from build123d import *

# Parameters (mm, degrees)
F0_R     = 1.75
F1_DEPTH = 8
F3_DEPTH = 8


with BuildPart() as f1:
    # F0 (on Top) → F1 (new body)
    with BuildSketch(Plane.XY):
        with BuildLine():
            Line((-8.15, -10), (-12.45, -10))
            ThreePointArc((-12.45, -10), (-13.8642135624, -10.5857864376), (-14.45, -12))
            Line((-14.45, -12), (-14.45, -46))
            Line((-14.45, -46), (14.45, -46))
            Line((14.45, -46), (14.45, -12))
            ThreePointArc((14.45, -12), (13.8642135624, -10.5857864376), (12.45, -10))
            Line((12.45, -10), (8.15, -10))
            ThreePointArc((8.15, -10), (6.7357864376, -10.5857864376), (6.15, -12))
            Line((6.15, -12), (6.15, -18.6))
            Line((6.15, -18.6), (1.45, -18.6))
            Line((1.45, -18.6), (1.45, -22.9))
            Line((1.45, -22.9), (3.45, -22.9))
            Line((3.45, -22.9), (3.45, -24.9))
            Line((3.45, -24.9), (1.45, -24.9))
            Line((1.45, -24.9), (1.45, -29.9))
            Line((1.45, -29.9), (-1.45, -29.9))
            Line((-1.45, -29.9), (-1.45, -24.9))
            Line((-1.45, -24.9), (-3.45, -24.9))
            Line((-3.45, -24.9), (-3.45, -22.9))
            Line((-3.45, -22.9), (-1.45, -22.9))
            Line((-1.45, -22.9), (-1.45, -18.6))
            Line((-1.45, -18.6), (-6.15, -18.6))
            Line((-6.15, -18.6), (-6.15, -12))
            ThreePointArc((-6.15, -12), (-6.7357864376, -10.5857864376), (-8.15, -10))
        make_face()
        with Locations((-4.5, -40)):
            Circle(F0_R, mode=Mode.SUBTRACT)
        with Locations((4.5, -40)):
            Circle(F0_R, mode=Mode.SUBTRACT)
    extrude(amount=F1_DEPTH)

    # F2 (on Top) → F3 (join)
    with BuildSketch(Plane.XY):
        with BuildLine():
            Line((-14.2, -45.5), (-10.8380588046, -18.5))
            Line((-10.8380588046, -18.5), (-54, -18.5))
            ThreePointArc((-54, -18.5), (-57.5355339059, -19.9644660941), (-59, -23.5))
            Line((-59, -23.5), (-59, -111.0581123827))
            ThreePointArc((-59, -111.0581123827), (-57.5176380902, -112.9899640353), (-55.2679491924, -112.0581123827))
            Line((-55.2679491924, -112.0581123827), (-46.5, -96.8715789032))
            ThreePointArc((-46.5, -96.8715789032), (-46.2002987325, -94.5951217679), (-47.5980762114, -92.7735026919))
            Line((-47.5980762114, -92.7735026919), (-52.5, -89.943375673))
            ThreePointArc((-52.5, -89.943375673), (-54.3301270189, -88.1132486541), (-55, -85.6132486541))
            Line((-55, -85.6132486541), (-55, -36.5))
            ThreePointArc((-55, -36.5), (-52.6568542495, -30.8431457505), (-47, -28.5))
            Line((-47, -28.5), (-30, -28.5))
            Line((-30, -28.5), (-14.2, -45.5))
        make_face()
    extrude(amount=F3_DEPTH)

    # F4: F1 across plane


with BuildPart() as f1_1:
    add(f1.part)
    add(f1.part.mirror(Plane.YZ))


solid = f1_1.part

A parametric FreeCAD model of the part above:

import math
import FreeCAD as App
import Part
import Sketcher
from FreeCAD import Vector
Q = App.Units.Quantity

doc = App.newDocument("Part")
body = doc.addObject("PartDesign::Body", "Body")

# Sketch on XY plane
sketch1 = doc.addObject("Sketcher::SketchObject", "Sketch")
body.addObject(sketch1)
sketch1.AttachmentSupport = (doc.XY_Plane, [""])
sketch1.MapMode = "FlatFace"
sketch1.addGeometry(Part.LineSegment(Vector(-8.2, -10, 0), Vector(-12.4, -10, 0)), False)
sketch1.addGeometry(Part.ArcOfCircle(Part.Circle(Vector(-12.4, -12, 0), Vector(0, 0, 1), 2), math.radians(90), math.radians(180)), False)
sketch1.addGeometry(Part.LineSegment(Vector(-14.4, -12, 0), Vector(-14.4, -46, 0)), False)
sketch1.addGeometry(Part.LineSegment(Vector(-14.4, -46, 0), Vector(14.4, -46, 0)), False)
sketch1.addGeometry(Part.LineSegment(Vector(14.4, -46, 0), Vector(14.4, -12, 0)), False)
sketch1.addGeometry(Part.ArcOfCircle(Part.Circle(Vector(12.4, -12, 0), Vector(0, 0, 1), 2), math.radians(0), math.radians(90)), False)
sketch1.addGeometry(Part.LineSegment(Vector(12.4, -10, 0), Vector(8.2, -10, 0)), False)
sketch1.addGeometry(Part.ArcOfCircle(Part.Circle(Vector(8.2, -12, 0), Vector(0, 0, 1), 2), math.radians(90), math.radians(180)), False)
sketch1.addGeometry(Part.LineSegment(Vector(6.2, -12, 0), Vector(6.2, -18.6, 0)), False)
sketch1.addGeometry(Part.LineSegment(Vector(6.2, -18.6, 0), Vector(1.4, -18.6, 0)), False)
sketch1.addGeometry(Part.LineSegment(Vector(1.4, -18.6, 0), Vector(1.4, -22.9, 0)), False)
sketch1.addGeometry(Part.LineSegment(Vector(1.4, -22.9, 0), Vector(3.5, -22.9, 0)), False)
sketch1.addGeometry(Part.LineSegment(Vector(3.5, -22.9, 0), Vector(3.5, -24.9, 0)), False)
sketch1.addGeometry(Part.LineSegment(Vector(3.5, -24.9, 0), Vector(1.4, -24.9, 0)), False)
sketch1.addGeometry(Part.LineSegment(Vector(1.4, -24.9, 0), Vector(1.4, -29.9, 0)), False)
sketch1.addGeometry(Part.LineSegment(Vector(1.4, -29.9, 0), Vector(-1.4, -29.9, 0)), False)
sketch1.addGeometry(Part.LineSegment(Vector(-1.4, -29.9, 0), Vector(-1.4, -24.9, 0)), False)
sketch1.addGeometry(Part.LineSegment(Vector(-1.4, -24.9, 0), Vector(-3.5, -24.9, 0)), False)
sketch1.addGeometry(Part.LineSegment(Vector(-3.5, -24.9, 0), Vector(-3.5, -22.9, 0)), False)
sketch1.addGeometry(Part.LineSegment(Vector(-3.5, -22.9, 0), Vector(-1.4, -22.9, 0)), False)
sketch1.addGeometry(Part.LineSegment(Vector(-1.4, -22.9, 0), Vector(-1.4, -18.6, 0)), False)
sketch1.addGeometry(Part.LineSegment(Vector(-1.4, -18.6, 0), Vector(-6.2, -18.6, 0)), False)
sketch1.addGeometry(Part.LineSegment(Vector(-6.2, -18.6, 0), Vector(-6.2, -12, 0)), False)
sketch1.addGeometry(Part.ArcOfCircle(Part.Circle(Vector(-8.2, -12, 0), Vector(0, 0, 1), 2), math.radians(0), math.radians(90)), False)
sketch1.addGeometry(Part.Circle(Vector(-4.5, -40, 0), Vector(0, 0, 1), 1.8), False)
sketch1.addGeometry(Part.Circle(Vector(4.5, -40, 0), Vector(0, 0, 1), 1.8), False)
sketch1.addConstraint(Sketcher.Constraint("Tangent", 0, 2, 1, 1))
sketch1.addConstraint(Sketcher.Constraint("Tangent", 1, 2, 2, 1))
sketch1.addConstraint(Sketcher.Constraint("Coincident", 2, 2, 3, 1))
sketch1.addConstraint(Sketcher.Constraint("Coincident", 3, 2, 4, 1))
sketch1.addConstraint(Sketcher.Constraint("Tangent", 4, 2, 5, 1))
sketch1.addConstraint(Sketcher.Constraint("Tangent", 5, 2, 6, 1))
sketch1.addConstraint(Sketcher.Constraint("Tangent", 6, 2, 7, 1))
sketch1.addConstraint(Sketcher.Constraint("Tangent", 7, 2, 8, 1))
sketch1.addConstraint(Sketcher.Constraint("Coincident", 8, 2, 9, 1))
sketch1.addConstraint(Sketcher.Constraint("Coincident", 9, 2, 10, 1))
sketch1.addConstraint(Sketcher.Constraint("Coincident", 10, 2, 11, 1))
sketch1.addConstraint(Sketcher.Constraint("Coincident", 11, 2, 12, 1))
sketch1.addConstraint(Sketcher.Constraint("Coincident", 12, 2, 13, 1))
sketch1.addConstraint(Sketcher.Constraint("Coincident", 13, 2, 14, 1))
sketch1.addConstraint(Sketcher.Constraint("Coincident", 14, 2, 15, 1))
sketch1.addConstraint(Sketcher.Constraint("Coincident", 15, 2, 16, 1))
sketch1.addConstraint(Sketcher.Constraint("Coincident", 16, 2, 17, 1))
sketch1.addConstraint(Sketcher.Constraint("Coincident", 17, 2, 18, 1))
sketch1.addConstraint(Sketcher.Constraint("Coincident", 18, 2, 19, 1))
sketch1.addConstraint(Sketcher.Constraint("Coincident", 19, 2, 20, 1))
sketch1.addConstraint(Sketcher.Constraint("Coincident", 20, 2, 21, 1))
sketch1.addConstraint(Sketcher.Constraint("Coincident", 21, 2, 22, 1))
sketch1.addConstraint(Sketcher.Constraint("Tangent", 22, 2, 23, 1))
sketch1.addConstraint(Sketcher.Constraint("Tangent", 23, 2, 0, 1))
sketch1.addConstraint(Sketcher.Constraint("Horizontal", 0))
sketch1.addConstraint(Sketcher.Constraint("Vertical", 2))
sketch1.addConstraint(Sketcher.Constraint("Horizontal", 3))
sketch1.addConstraint(Sketcher.Constraint("Vertical", 4))
sketch1.addConstraint(Sketcher.Constraint("Horizontal", 6))
sketch1.addConstraint(Sketcher.Constraint("Vertical", 8))
sketch1.addConstraint(Sketcher.Constraint("Horizontal", 9))
sketch1.addConstraint(Sketcher.Constraint("Vertical", 10))
sketch1.addConstraint(Sketcher.Constraint("Horizontal", 11))
sketch1.addConstraint(Sketcher.Constraint("Vertical", 12))
sketch1.addConstraint(Sketcher.Constraint("Horizontal", 13))
sketch1.addConstraint(Sketcher.Constraint("Vertical", 14))
sketch1.addConstraint(Sketcher.Constraint("Horizontal", 15))
sketch1.addConstraint(Sketcher.Constraint("Vertical", 16))
sketch1.addConstraint(Sketcher.Constraint("Horizontal", 17))
sketch1.addConstraint(Sketcher.Constraint("Vertical", 18))
sketch1.addConstraint(Sketcher.Constraint("Horizontal", 19))
sketch1.addConstraint(Sketcher.Constraint("Vertical", 20))
sketch1.addConstraint(Sketcher.Constraint("Horizontal", 21))
sketch1.addConstraint(Sketcher.Constraint("Vertical", 22))
sketch1.addConstraint(Sketcher.Constraint("Equal", 1, 5))
sketch1.addConstraint(Sketcher.Constraint("Equal", 5, 7))
sketch1.addConstraint(Sketcher.Constraint("Equal", 7, 23))
sketch1.addConstraint(Sketcher.Constraint("Equal", 24, 25))
sketch1.addConstraint(Sketcher.Constraint("Symmetric", 1, 3, 5, 3, -2))
sketch1.addConstraint(Sketcher.Constraint("Symmetric", 24, 3, 25, 3, -2))
sketch1.addConstraint(Sketcher.Constraint("Symmetric", 13, 2, 16, 2, -2))
sketch1.addConstraint(Sketcher.Constraint("Symmetric", 11, 2, 18, 2, -2))
sketch1.addConstraint(Sketcher.Constraint("Symmetric", 9, 2, 20, 2, -2))
sketch1.addConstraint(Sketcher.Constraint("Vertical", 10, 2, 13, 2))
sketch1.addConstraint(Sketcher.Constraint("Equal", 0, 6))
sketch1.addConstraint(Sketcher.Constraint("Equal", 6, 10))
sketch1.addConstraint(Sketcher.Constraint("Equal", 19, 12))
sketch1.addConstraint(Sketcher.Constraint("Radius", 1, 2.0))
sketch1.addConstraint(Sketcher.Constraint("Diameter", 24, 3.5))
sketch1.addConstraint(Sketcher.Constraint("DistanceX", 11, 1, 11, 2, 2.0))
sketch1.addConstraint(Sketcher.Constraint("DistanceY", 2, 2, 2, 1, 34.0))
sketch1.addConstraint(Sketcher.Constraint("DistanceY", 14, 2, 14, 1, 5.0))
sketch1.addConstraint(Sketcher.Constraint("DistanceX", 0, 2, 0, 1, 4.3))
sketch1.addConstraint(Sketcher.Constraint("DistanceX", 3, 1, 3, 2, 28.9))
sketch1.addConstraint(Sketcher.Constraint("DistanceX", 9, 2, 9, 1, 4.7))
sketch1.addConstraint(Sketcher.Constraint("DistanceY", 8, 2, 8, 1, 6.6))
sketch1.addConstraint(Sketcher.Constraint("DistanceY", 1, 3, -1, 1, 12.0))
sketch1.addConstraint(Sketcher.Constraint("DistanceY", 24, 3, -1, 1, 40.0))
sketch1.addConstraint(Sketcher.Constraint("DistanceX", 24, 3, 25, 3, 9.0))
pad1 = doc.addObject("PartDesign::Pad", "Pad")
body.addObject(pad1)
pad1.Profile = sketch1
pad1.Length = 8

# Sketch on XY plane
sketch2 = doc.addObject("Sketcher::SketchObject", "Sketch001")
body.addObject(sketch2)
sketch2.AttachmentSupport = (doc.XY_Plane, [""])
sketch2.MapMode = "FlatFace"
sketch2.addGeometry(Part.LineSegment(Vector(-14.2, -45.5, 0), Vector(-10.8, -18.5, 0)), False)
sketch2.addGeometry(Part.LineSegment(Vector(-10.8, -18.5, 0), Vector(-54, -18.5, 0)), False)
sketch2.addGeometry(Part.ArcOfCircle(Part.Circle(Vector(-54, -23.5, 0), Vector(0, 0, 1), 5), math.radians(90), math.radians(180)), False)
sketch2.addGeometry(Part.LineSegment(Vector(-59, -23.5, 0), Vector(-59, -111.1, 0)), False)
sketch2.addGeometry(Part.ArcOfCircle(Part.Circle(Vector(-57, -111.1, 0), Vector(0, 0, 1), 2), math.radians(180), math.radians(330)), False)
sketch2.addGeometry(Part.LineSegment(Vector(-55.3, -112.1, 0), Vector(-46.5, -96.9, 0)), False)
sketch2.addGeometry(Part.ArcOfCircle(Part.Circle(Vector(-49.1, -95.4, 0), Vector(0, 0, 1), 3), math.radians(-30), math.radians(60)), False)
sketch2.addGeometry(Part.LineSegment(Vector(-47.6, -92.8, 0), Vector(-52.5, -89.9, 0)), False)
sketch2.addGeometry(Part.ArcOfCircle(Part.Circle(Vector(-50, -85.6, 0), Vector(0, 0, 1), 5), math.radians(180), math.radians(240)), False)
sketch2.addGeometry(Part.LineSegment(Vector(-55, -85.6, 0), Vector(-55, -36.5, 0)), False)
sketch2.addGeometry(Part.ArcOfCircle(Part.Circle(Vector(-47, -36.5, 0), Vector(0, 0, 1), 8), math.radians(90), math.radians(180)), False)
sketch2.addGeometry(Part.LineSegment(Vector(-47, -28.5, 0), Vector(-30, -28.5, 0)), False)
sketch2.addGeometry(Part.LineSegment(Vector(-30, -28.5, 0), Vector(-14.2, -45.5, 0)), False)
sketch2.addConstraint(Sketcher.Constraint("Coincident", 0, 2, 1, 1))
sketch2.addConstraint(Sketcher.Constraint("Tangent", 1, 2, 2, 1))
sketch2.addConstraint(Sketcher.Constraint("Tangent", 2, 2, 3, 1))
sketch2.addConstraint(Sketcher.Constraint("Tangent", 3, 2, 4, 1))
sketch2.addConstraint(Sketcher.Constraint("Tangent", 4, 2, 5, 1))
sketch2.addConstraint(Sketcher.Constraint("Tangent", 5, 2, 6, 1))
sketch2.addConstraint(Sketcher.Constraint("Tangent", 6, 2, 7, 1))
sketch2.addConstraint(Sketcher.Constraint("Tangent", 7, 2, 8, 2))
sketch2.addConstraint(Sketcher.Constraint("Tangent", 8, 1, 9, 1))
sketch2.addConstraint(Sketcher.Constraint("Tangent", 9, 2, 10, 2))
sketch2.addConstraint(Sketcher.Constraint("Tangent", 10, 1, 11, 1))
sketch2.addConstraint(Sketcher.Constraint("Coincident", 11, 2, 12, 1))
sketch2.addConstraint(Sketcher.Constraint("Coincident", 12, 2, 0, 1))
sketch2.addConstraint(Sketcher.Constraint("Horizontal", 1))
sketch2.addConstraint(Sketcher.Constraint("Vertical", 3))
sketch2.addConstraint(Sketcher.Constraint("Vertical", 9))
sketch2.addConstraint(Sketcher.Constraint("Horizontal", 11))
sketch2.addConstraint(Sketcher.Constraint("Equal", 2, 8))
sketch2.addConstraint(Sketcher.Constraint("Perpendicular", 5, 7))
sketch2.addConstraint(Sketcher.Constraint("Radius", 2, 5.0))
sketch2.addConstraint(Sketcher.Constraint("Radius", 4, 2.0))
sketch2.addConstraint(Sketcher.Constraint("Radius", 6, 3.0))
sketch2.addConstraint(Sketcher.Constraint("Radius", 10, 8.0))
sketch2.addConstraint(Sketcher.Constraint("DistanceX", 11, 1, 11, 2, 17.0))
sketch2.addConstraint(Sketcher.Constraint("Angle", 5, Q("60 deg")))
sketch2.addConstraint(Sketcher.Constraint("DistanceX", 2, 3, -1, 1, 54.0))
sketch2.addConstraint(Sketcher.Constraint("DistanceX", 8, 3, -1, 1, 50.0))
sketch2.addConstraint(Sketcher.Constraint("DistanceY", 10, 3, 2, 3, 13.0))
sketch2.addConstraint(Sketcher.Constraint("DistanceX", 7, 2, 5, 2, 6.0))
sketch2.addConstraint(Sketcher.Constraint("DistanceY", 12, 2, 11, 2, 17.0))
sketch2.addConstraint(Sketcher.Constraint("DistanceY", 2, 3, -1, 1, 23.5))
sketch2.addConstraint(Sketcher.Constraint("DistanceX", 12, 2, -1, 1, 14.2))
sketch2.addConstraint(Sketcher.Constraint("DistanceX", 1, 2, 1, 1, 43.161941))
sketch2.addConstraint(Sketcher.Constraint("DistanceY", 9, 1, 9, 2, 49.113249))
pad2 = doc.addObject("PartDesign::Pad", "Pad001")
body.addObject(pad2)
pad2.Profile = sketch2
pad2.Length = 8
body2 = doc.addObject("PartDesign::Body", "Body001")
doc.recompute()

body2.BaseFeature = body
doc.recompute()

mirroring = doc.addObject("Part::Mirroring", "Mirroring")
mirroring.Source = body
mirroring.Base = Vector(0, 0, 0)
mirroring.Normal = Vector(1, 0, 0)
body3 = doc.addObject("PartDesign::Body", "Body002")
body3.BaseFeature = mirroring
boolean = doc.addObject("PartDesign::Boolean", "Boolean")
body2.addObject(boolean)
boolean.Type = "Fuse"
boolean.addObjects([body3])
doc.recompute()
mirroring.Visibility = False

doc.recompute()
